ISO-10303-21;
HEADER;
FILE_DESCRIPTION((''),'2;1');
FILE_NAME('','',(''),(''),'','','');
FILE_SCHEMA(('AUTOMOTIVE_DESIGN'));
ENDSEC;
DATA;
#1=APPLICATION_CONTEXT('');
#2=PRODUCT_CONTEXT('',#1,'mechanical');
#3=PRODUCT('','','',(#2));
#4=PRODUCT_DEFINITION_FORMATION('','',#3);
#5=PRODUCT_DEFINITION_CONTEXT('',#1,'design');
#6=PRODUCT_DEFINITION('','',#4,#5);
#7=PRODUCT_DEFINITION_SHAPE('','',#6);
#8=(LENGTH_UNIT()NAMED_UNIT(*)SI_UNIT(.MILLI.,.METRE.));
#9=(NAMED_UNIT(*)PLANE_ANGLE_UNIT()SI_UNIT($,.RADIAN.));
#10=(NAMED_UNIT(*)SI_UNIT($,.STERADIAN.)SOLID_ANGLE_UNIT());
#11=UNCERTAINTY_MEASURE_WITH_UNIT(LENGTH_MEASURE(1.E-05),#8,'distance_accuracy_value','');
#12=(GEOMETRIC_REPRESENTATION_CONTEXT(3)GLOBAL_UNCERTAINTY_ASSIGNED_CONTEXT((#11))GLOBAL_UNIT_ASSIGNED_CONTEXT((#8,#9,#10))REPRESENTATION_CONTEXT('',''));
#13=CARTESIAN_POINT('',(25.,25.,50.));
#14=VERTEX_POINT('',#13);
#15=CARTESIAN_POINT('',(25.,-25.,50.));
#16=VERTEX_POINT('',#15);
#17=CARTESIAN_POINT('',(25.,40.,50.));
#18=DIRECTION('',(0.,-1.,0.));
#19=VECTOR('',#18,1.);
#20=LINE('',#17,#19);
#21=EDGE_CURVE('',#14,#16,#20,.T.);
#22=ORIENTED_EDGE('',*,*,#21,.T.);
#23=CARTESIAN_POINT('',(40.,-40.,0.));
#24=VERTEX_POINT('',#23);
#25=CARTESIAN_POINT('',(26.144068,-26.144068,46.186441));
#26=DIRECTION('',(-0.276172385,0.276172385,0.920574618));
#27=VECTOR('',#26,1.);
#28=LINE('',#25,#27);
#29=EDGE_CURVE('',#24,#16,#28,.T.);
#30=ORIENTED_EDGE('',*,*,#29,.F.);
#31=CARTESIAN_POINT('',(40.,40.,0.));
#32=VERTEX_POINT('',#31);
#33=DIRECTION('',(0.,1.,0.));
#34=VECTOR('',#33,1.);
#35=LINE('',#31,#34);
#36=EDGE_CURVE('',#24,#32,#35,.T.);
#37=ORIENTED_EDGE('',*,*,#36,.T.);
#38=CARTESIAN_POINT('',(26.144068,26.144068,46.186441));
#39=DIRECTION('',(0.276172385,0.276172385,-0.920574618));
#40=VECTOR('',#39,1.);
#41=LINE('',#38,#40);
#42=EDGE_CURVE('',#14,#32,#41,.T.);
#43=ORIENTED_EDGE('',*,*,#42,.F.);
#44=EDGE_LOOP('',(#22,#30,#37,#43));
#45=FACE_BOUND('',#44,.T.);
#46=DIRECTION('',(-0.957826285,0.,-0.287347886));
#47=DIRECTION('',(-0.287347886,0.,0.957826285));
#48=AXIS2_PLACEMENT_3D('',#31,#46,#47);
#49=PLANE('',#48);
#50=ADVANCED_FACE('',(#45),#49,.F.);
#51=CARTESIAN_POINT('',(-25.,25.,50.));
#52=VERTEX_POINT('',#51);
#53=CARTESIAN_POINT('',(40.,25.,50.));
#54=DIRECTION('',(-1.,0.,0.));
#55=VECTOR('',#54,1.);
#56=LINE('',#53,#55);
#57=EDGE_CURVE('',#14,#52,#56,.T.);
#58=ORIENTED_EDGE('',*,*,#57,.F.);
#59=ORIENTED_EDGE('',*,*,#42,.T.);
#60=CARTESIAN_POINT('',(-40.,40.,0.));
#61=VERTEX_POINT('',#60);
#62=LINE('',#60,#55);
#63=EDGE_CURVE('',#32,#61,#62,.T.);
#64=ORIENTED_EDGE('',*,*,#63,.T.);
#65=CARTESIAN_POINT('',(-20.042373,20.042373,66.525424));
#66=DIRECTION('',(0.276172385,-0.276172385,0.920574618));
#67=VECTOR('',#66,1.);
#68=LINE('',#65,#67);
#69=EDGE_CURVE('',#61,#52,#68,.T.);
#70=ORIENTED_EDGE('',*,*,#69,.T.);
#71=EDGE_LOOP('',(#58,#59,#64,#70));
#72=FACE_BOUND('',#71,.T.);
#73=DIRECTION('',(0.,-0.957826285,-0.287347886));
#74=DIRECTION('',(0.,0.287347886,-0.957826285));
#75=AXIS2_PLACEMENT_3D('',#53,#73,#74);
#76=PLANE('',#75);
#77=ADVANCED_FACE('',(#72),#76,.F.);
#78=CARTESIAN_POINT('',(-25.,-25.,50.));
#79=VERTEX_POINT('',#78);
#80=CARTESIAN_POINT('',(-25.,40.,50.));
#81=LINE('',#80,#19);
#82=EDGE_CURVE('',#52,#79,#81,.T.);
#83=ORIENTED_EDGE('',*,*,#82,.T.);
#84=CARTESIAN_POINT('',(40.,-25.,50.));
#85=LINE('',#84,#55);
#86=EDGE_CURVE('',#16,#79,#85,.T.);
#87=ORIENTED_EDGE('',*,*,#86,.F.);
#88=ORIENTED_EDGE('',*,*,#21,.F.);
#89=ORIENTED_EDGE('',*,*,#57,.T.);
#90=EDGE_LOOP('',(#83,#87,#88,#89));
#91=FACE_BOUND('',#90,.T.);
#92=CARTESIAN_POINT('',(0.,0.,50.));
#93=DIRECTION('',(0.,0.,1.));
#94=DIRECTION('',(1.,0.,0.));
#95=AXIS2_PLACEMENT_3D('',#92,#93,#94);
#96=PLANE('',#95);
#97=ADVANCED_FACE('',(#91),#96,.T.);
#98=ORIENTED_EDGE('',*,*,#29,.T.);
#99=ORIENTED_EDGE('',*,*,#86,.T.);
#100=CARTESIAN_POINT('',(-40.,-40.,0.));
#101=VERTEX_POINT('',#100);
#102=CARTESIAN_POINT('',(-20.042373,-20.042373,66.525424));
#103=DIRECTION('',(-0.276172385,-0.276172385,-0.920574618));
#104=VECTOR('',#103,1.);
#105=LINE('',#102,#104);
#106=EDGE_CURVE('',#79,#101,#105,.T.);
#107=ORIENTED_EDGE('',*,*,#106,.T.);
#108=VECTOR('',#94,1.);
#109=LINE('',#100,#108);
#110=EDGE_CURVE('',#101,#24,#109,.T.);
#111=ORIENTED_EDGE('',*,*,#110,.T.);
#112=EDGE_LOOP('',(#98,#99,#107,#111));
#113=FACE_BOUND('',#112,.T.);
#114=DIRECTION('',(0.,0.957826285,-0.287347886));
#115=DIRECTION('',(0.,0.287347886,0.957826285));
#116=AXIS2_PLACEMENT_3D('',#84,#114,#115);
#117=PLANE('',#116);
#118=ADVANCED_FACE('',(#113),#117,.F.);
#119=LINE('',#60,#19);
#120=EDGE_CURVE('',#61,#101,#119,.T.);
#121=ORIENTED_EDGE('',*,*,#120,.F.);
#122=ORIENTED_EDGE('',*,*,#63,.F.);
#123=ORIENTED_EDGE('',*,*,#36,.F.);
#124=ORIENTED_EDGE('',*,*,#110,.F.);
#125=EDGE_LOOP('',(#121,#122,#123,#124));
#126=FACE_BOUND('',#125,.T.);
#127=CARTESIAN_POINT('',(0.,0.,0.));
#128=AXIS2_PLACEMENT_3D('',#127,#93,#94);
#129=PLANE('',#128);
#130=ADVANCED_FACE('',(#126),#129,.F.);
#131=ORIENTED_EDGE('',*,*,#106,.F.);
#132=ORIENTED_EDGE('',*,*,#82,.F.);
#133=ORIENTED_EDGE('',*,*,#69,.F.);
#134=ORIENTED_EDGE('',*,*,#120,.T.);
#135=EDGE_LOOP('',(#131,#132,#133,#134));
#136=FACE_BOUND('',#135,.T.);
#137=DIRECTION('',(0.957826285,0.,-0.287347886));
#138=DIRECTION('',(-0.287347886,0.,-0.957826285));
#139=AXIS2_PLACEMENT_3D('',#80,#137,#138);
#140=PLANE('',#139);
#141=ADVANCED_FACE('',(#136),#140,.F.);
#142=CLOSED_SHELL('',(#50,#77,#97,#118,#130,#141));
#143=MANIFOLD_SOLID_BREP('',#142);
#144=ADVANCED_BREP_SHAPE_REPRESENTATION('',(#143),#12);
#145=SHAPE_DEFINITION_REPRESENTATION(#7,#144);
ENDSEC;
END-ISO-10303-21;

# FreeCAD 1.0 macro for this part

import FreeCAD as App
import Part
import Sketcher

doc = App.newDocument("Part")
body = doc.addObject("PartDesign::Body", "Body")

# Sketch on XY plane
sketch1 = body.newObject("Sketcher::SketchObject", "Sketch")
sketch1.AttachmentSupport = (doc.getObject("XY_Plane"), [""])
sketch1.MapMode = "FlatFace"
sketch1.addGeometry([
    Part.LineSegment(App.Vector(-40, 40, 0), App.Vector(-40, -40, 0)),
    Part.LineSegment(App.Vector(-40, -40, 0), App.Vector(40, -40, 0)),
    Part.LineSegment(App.Vector(40, -40, 0), App.Vector(40, 40, 0)),
    Part.LineSegment(App.Vector(40, 40, 0), App.Vector(-40, 40, 0)),
], False)
sketch1.addConstraint([
    Sketcher.Constraint("Coincident", 0, 2, 1, 1),
    Sketcher.Constraint("Coincident", 1, 2, 2, 1),
    Sketcher.Constraint("Coincident", 2, 2, 3, 1),
    Sketcher.Constraint("Coincident", 3, 2, 0, 1),
    Sketcher.Constraint("Vertical", 0),
    Sketcher.Constraint("Horizontal", 1),
    Sketcher.Constraint("Vertical", 2),
    Sketcher.Constraint("Horizontal", 3),
    Sketcher.Constraint("Symmetric", 0, 2, 2, 2, -1, 1),
    Sketcher.Constraint("Equal", 3, 0),
    Sketcher.Constraint("DistanceX", 1, 1, 1, 2, 80.0),
])
pad1 = body.newObject("PartDesign::Pad", "Pad")
pad1.Profile = sketch1
pad1.Length = 50

# Sketch on YZ plane
sketch2 = body.newObject("Sketcher::SketchObject", "Sketch001")
sketch2.AttachmentSupport = (doc.getObject("YZ_Plane"), [""])
sketch2.MapMode = "FlatFace"
sketch2.AttachmentOffset = App.Placement(App.Vector(0, 0, -40), App.Rotation())
sketch2.addGeometry([
    Part.LineSegment(App.Vector(40, 0, 0), App.Vector(25, 50, 0)),  # 0
    Part.LineSegment(App.Vector(25, 50, 0), App.Vector(40, 50, 0)),  # 1
    Part.LineSegment(App.Vector(40, 50, 0), App.Vector(40, 0, 0)),  # 2
    Part.LineSegment(App.Vector(-25, 50, 0), App.Vector(-40, 0, 0)),  # 3
    Part.LineSegment(App.Vector(-40, 0, 0), App.Vector(-40, 50, 0)),  # 4
    Part.LineSegment(App.Vector(-40, 50, 0), App.Vector(-25, 50, 0)),  # 5
], False)
sketch2.addConstraint([
    Sketcher.Constraint("Coincident", 0, 2, 1, 1),
    Sketcher.Constraint("Coincident", 1, 2, 2, 1),
    Sketcher.Constraint("Coincident", 2, 2, 0, 1),
    Sketcher.Constraint("Coincident", 3, 2, 4, 1),
    Sketcher.Constraint("Coincident", 4, 2, 5, 1),
    Sketcher.Constraint("Coincident", 5, 2, 3, 1),
    Sketcher.Constraint("Horizontal", 1),
    Sketcher.Constraint("Vertical", 2),
    Sketcher.Constraint("Vertical", 4),
    Sketcher.Constraint("Horizontal", 5),
    Sketcher.Constraint("Symmetric", 2, 2, 3, 2, -1, 1),
    Sketcher.Constraint("Symmetric", 0, 2, 5, 2, -2),
    Sketcher.Constraint("PointOnObject", 2, 2, -1),
    Sketcher.Constraint("DistanceX", 1, 1, 1, 2, 15.0),
    Sketcher.Constraint("DistanceY", 2, 2, 2, 1, 50.0),
    Sketcher.Constraint("DistanceX", -1, 1, 0, 2, 25.0),
])
pocket1 = body.newObject("PartDesign::Pocket", "Pocket")
pocket1.Profile = sketch2
pocket1.Type = "ThroughAll"
pocket1.Reversed = True

# Sketch on XZ plane
sketch3 = body.newObject("Sketcher::SketchObject", "Sketch002")
sketch3.AttachmentSupport = (doc.getObject("XZ_Plane"), [""])
sketch3.MapMode = "FlatFace"
sketch3.AttachmentOffset = App.Placement(App.Vector(0, 0, 40), App.Rotation())
sketch3.addGeometry([
    Part.LineSegment(App.Vector(-40, 0, 0), App.Vector(-25, 50, 0)),  # 0
    Part.LineSegment(App.Vector(-25, 50, 0), App.Vector(-40, 50, 0)),  # 1
    Part.LineSegment(App.Vector(-40, 50, 0), App.Vector(-40, 0, 0)),  # 2
    Part.LineSegment(App.Vector(40, 50, 0), App.Vector(25, 50, 0)),  # 3
    Part.LineSegment(App.Vector(25, 50, 0), App.Vector(40, 0, 0)),  # 4
    Part.LineSegment(App.Vector(40, 0, 0), App.Vector(40, 50, 0)),  # 5
], False)
sketch3.addConstraint([
    Sketcher.Constraint("Coincident", 0, 2, 1, 1),
    Sketcher.Constraint("Coincident", 1, 2, 2, 1),
    Sketcher.Constraint("Coincident", 2, 2, 0, 1),
    Sketcher.Constraint("Coincident", 3, 2, 4, 1),
    Sketcher.Constraint("Coincident", 4, 2, 5, 1),
    Sketcher.Constraint("Coincident", 5, 2, 3, 1),
    Sketcher.Constraint("Horizontal", 1),
    Sketcher.Constraint("Vertical", 2),
    Sketcher.Constraint("Horizontal", 3),
    Sketcher.Constraint("Vertical", 5),
    Sketcher.Constraint("Symmetric", 2, 2, 4, 2, -1, 1),
    Sketcher.Constraint("Symmetric", 0, 2, 3, 2, -2),
    Sketcher.Constraint("PointOnObject", 2, 2, -1),
    Sketcher.Constraint("DistanceX", 1, 2, 1, 1, 15.0),
    Sketcher.Constraint("DistanceY", 2, 2, 2, 1, 50.0),
    Sketcher.Constraint("DistanceX", 0, 2, -1, 1, 25.0),
])
pocket2 = body.newObject("PartDesign::Pocket", "Pocket001")
pocket2.Profile = sketch3
pocket2.Type = "ThroughAll"

doc.recompute()
